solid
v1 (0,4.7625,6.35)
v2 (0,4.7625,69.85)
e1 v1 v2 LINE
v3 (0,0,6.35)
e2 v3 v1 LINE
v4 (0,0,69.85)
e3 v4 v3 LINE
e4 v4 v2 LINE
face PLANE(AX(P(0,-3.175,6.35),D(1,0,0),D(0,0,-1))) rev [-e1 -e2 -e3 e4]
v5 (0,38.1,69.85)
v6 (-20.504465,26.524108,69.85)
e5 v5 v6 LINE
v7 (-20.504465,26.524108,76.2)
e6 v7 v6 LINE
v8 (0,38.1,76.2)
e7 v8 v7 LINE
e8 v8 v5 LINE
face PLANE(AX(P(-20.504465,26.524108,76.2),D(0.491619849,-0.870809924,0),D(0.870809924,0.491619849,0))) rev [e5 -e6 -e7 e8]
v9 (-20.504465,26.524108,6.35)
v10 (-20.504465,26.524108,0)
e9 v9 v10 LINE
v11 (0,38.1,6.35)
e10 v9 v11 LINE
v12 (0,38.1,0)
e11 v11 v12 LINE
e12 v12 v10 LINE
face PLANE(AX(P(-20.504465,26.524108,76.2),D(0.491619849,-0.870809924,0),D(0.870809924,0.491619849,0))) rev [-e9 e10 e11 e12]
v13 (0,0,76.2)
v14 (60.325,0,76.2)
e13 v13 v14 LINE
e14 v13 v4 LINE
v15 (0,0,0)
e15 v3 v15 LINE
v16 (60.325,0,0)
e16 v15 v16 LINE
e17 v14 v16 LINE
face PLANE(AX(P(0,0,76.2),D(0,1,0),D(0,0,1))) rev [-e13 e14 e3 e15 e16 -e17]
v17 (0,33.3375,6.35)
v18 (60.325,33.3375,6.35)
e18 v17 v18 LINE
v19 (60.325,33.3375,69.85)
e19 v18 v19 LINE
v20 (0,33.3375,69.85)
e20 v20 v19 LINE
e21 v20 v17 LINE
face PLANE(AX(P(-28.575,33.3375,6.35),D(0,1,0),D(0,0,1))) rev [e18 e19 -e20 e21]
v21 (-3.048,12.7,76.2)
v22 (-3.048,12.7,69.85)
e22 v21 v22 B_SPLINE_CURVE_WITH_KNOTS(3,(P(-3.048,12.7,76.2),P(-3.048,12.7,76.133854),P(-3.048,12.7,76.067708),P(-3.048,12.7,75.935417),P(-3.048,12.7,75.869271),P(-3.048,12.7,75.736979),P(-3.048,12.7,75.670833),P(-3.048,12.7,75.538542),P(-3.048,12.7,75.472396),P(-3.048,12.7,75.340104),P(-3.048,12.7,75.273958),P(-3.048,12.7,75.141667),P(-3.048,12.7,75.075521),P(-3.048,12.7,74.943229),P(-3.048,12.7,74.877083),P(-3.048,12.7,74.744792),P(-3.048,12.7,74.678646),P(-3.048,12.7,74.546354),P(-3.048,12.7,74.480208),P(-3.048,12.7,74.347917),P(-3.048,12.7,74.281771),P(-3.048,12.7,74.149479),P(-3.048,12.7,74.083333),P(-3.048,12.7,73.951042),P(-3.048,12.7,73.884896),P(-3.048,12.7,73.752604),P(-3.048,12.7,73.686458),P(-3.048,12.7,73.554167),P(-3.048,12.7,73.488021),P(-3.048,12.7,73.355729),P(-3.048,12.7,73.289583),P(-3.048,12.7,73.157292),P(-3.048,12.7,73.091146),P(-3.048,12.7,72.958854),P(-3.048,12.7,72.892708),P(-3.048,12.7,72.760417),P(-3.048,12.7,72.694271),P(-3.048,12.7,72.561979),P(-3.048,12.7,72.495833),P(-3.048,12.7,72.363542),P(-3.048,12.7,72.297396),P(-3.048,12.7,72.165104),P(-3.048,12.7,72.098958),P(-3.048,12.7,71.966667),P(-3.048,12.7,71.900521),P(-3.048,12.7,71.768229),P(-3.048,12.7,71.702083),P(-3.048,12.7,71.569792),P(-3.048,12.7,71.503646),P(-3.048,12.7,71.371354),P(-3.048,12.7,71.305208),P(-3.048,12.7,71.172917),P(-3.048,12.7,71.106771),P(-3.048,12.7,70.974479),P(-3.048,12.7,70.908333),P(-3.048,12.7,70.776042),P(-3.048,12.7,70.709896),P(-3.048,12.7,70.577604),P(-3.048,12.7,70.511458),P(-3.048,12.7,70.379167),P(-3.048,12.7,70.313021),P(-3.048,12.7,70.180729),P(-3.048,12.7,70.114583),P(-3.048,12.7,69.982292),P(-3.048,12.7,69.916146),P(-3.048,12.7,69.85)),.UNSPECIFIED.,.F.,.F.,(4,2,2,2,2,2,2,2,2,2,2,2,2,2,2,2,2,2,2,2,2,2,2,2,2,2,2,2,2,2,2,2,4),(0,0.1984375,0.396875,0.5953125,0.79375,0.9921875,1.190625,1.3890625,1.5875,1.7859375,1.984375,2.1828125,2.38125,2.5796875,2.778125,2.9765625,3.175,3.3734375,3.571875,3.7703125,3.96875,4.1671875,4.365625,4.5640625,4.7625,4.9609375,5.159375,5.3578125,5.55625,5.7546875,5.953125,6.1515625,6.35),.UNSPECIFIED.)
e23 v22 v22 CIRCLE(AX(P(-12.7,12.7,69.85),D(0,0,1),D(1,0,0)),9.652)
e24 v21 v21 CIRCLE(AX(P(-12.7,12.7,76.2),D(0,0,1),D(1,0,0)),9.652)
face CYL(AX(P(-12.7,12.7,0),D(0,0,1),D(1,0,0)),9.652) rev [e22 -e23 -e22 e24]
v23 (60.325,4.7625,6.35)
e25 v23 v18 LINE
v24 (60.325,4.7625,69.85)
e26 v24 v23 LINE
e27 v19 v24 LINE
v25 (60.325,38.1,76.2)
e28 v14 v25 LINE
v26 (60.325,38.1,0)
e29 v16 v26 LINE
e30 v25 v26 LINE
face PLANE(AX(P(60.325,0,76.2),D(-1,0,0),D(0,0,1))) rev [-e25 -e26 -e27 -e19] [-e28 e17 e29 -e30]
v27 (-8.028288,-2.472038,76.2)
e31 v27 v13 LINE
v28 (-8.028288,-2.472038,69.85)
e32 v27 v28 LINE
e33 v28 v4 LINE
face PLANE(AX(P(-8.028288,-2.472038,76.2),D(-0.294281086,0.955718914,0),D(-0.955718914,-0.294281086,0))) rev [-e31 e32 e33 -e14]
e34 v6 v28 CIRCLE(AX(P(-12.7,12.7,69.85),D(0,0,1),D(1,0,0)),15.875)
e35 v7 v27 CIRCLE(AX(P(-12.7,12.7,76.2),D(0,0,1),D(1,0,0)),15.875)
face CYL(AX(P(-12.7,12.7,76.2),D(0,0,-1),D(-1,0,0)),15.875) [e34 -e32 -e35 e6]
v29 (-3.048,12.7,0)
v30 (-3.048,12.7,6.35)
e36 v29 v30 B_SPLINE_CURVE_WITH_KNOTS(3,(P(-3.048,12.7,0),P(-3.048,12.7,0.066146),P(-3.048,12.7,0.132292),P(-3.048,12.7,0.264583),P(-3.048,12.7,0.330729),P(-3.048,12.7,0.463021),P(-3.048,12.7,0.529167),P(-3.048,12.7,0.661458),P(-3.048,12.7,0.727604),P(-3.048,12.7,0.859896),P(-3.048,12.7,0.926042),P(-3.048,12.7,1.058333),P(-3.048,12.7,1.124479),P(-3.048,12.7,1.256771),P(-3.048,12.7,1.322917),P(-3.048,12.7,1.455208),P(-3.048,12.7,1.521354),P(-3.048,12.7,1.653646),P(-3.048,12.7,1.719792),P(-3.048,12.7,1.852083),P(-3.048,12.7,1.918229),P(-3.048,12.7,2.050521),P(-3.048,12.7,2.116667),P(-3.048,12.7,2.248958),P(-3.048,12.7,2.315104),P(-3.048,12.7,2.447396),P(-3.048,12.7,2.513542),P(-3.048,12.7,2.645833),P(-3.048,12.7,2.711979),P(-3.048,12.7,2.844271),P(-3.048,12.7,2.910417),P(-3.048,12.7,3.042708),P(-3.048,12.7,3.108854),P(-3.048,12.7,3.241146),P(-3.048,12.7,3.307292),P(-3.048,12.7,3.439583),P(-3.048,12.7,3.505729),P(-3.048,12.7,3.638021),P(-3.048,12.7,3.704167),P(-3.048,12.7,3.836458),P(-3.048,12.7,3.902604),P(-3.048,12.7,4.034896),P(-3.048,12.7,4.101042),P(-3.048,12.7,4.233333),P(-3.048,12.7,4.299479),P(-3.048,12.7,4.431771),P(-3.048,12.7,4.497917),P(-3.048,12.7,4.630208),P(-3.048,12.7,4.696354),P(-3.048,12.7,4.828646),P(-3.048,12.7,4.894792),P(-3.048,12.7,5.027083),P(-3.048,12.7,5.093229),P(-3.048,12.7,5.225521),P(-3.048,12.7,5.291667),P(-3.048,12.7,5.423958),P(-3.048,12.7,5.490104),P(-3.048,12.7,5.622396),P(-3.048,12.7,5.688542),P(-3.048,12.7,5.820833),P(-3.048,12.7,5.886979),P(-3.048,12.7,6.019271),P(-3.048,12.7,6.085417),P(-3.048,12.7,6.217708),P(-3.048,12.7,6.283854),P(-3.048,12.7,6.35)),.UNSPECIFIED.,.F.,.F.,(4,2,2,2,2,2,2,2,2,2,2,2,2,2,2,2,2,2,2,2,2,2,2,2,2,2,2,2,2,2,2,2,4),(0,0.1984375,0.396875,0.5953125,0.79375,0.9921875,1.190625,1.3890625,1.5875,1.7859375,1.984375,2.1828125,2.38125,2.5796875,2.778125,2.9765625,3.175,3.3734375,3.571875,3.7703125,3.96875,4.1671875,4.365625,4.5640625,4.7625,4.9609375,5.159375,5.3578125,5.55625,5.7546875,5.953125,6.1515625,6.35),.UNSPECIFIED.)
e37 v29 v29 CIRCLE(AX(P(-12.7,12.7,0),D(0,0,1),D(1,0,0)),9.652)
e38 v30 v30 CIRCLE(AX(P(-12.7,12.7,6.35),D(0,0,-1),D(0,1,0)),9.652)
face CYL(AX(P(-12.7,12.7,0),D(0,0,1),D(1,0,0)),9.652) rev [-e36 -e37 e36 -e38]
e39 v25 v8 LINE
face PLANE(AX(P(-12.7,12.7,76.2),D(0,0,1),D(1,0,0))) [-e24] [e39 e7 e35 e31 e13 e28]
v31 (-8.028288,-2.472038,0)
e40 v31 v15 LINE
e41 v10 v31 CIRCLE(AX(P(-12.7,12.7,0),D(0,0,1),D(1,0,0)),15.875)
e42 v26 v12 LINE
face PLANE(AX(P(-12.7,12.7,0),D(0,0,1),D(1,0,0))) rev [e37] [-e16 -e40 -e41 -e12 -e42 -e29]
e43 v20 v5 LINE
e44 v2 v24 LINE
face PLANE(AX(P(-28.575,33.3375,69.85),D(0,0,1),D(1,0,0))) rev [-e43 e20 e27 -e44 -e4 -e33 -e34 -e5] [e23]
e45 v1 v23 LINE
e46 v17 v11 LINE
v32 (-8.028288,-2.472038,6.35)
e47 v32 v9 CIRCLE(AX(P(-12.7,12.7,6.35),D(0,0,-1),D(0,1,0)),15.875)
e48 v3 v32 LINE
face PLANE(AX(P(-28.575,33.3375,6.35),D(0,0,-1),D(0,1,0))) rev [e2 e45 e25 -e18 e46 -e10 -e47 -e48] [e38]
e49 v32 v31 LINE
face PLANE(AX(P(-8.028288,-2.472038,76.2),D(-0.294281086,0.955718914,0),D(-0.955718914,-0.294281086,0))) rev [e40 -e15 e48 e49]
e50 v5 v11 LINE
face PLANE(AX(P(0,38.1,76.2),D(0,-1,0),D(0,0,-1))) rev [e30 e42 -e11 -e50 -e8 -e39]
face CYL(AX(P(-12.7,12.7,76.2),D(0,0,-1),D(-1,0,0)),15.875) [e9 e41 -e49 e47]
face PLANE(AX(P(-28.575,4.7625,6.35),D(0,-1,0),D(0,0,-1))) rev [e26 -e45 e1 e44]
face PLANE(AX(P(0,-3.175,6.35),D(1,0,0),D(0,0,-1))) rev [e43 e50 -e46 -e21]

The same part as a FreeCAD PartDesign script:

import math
import FreeCAD as App
import Part
import Sketcher
from FreeCAD import Vector
Q = App.Units.Quantity


def add_polygon(sketch, points):
    """Adds a closed chain of lines whose ends are joined by coincident constraints."""
    first, n = sketch.GeometryCount, len(points)
    for a, b in zip(points, points[1:] + points[:1]):
        sketch.addGeometry(Part.LineSegment(App.Vector(*a, 0), App.Vector(*b, 0)), False)
    for i in range(n):
        sketch.addConstraint(Sketcher.Constraint("Coincident", first + i, 2, first + (i + 1) % n, 1))

doc = App.newDocument("Part")
params = doc.addObject("Spreadsheet::Sheet", "Params")
for row, (alias, value) in enumerate([
    ("sketch1_height", "1.5 in"),
    ("sketch1_radius", "0.625 in"),
    ("sketch1_width", "2.375 in"),
    ("pad1_length", "3 in"),
    ("sketch2_height", "2.5 in"),
    ("sketch2_width", "1.125 in"),
    ("sketch3_width", "2 in"),
    ("sketch3_height", "2.5 in"),
    ("sketch4_diameter", "0.76 in"),
], start=1):
    params.set(f"A{row}", alias)
    params.set(f"B{row}", "=" + value)
    params.setAlias(f"B{row}", alias)

body = doc.addObject("PartDesign::Body", "Body")

# Sketch on XY plane
sketch1 = body.newObject("Sketcher::SketchObject", "Sketch")
sketch1.AttachmentSupport = (doc.getObject("XY_Plane"), [""])
sketch1.MapMode = "FlatFace"
sketch1.addGeometry([
    Part.LineSegment(Vector(0, 0, 0), Vector(60, 0, 0)),  # 0
    Part.LineSegment(Vector(60, 0, 0), Vector(60, 38, 0)),  # 1
    Part.LineSegment(Vector(60, 38, 0), Vector(0, 38, 0)),  # 2
    Part.LineSegment(Vector(0, 38, 0), Vector(-21, 27, 0)),  # 3
    Part.ArcOfCircle(Part.Circle(Vector(-13, 13, 0), Vector(0, 0, 1), 16), math.radians(119), math.radians(287)),  # 4
    Part.LineSegment(Vector(-8, -2, 0), Vector(0, 0, 0)),  # 5
], False)
sketch1.addConstraint([
    Sketcher.Constraint("Coincident", 0, 2, 1, 1),
    Sketcher.Constraint("Coincident", 1, 2, 2, 1),
    Sketcher.Constraint("Coincident", 2, 2, 3, 1),
    Sketcher.Constraint("Tangent", 3, 2, 4, 1),
    Sketcher.Constraint("Tangent", 4, 2, 5, 1),
    Sketcher.Constraint("Coincident", 5, 2, 0, 1),
    Sketcher.Constraint("Horizontal", 0),
    Sketcher.Constraint("Vertical", 1),
    Sketcher.Constraint("Horizontal", 2),
    Sketcher.Constraint("Coincident", 5, 2, -1, 1),
    Sketcher.Constraint("PointOnObject", 2, 2, -2),
    Sketcher.Constraint("DistanceY", 1, 1, 1, 2, Q("1.5 in")),
    Sketcher.Constraint("Radius", 4, Q("0.625 in")),
    Sketcher.Constraint("DistanceY", 4, 3, 1, 2, Q("1 in")),
    Sketcher.Constraint("DistanceX", 4, 3, -1, 1, Q("0.5 in")),
    Sketcher.Constraint("DistanceX", 0, 1, 0, 2, Q("2.375 in")),
])
sketch1.setExpression("Constraints[11]", "Params.sketch1_height")
sketch1.setExpression("Constraints[12]", "Params.sketch1_radius")
sketch1.setExpression("Constraints[15]", "Params.sketch1_width")
pad1 = body.newObject("PartDesign::Pad", "Pad")
pad1.Profile = sketch1
pad1.setExpression("Length", "Params.pad1_length")

# Sketch on YZ plane
sketch2 = body.newObject("Sketcher::SketchObject", "Sketch001")
sketch2.AttachmentSupport = (doc.getObject("YZ_Plane"), [""])
sketch2.MapMode = "FlatFace"
sketch2.AttachmentOffset = App.Placement(Vector(0, 0, 2.375 * 25.4), App.Rotation())
add_polygon(sketch2, [(33, 70), (5, 70), (5, 6), (33, 6)])  # lines 0-3
sketch2.addConstraint([
    Sketcher.Constraint("Horizontal", 0),
    Sketcher.Constraint("Vertical", 1),
    Sketcher.Constraint("Horizontal", 2),
    Sketcher.Constraint("Vertical", 3),
    Sketcher.Constraint("DistanceY", 1, 2, 1, 1, Q("2.5 in")),
    Sketcher.Constraint("DistanceX", 0, 2, 0, 1, Q("1.125 in")),
    Sketcher.Constraint("DistanceY", -1, 1, 0, 2, Q("2.75 in")),
    Sketcher.Constraint("DistanceX", -1, 1, 0, 2, Q("0.1875 in")),
])
sketch2.setExpression("Constraints[8]", "Params.sketch2_height")
sketch2.setExpression("Constraints[9]", "Params.sketch2_width")
pocket1 = body.newObject("PartDesign::Pocket", "Pocket")
pocket1.Profile = sketch2
pocket1.Type = "ThroughAll"

# Sketch on XZ plane
sketch3 = body.newObject("Sketcher::SketchObject", "Sketch002")
sketch3.AttachmentSupport = (doc.getObject("XZ_Plane"), [""])
sketch3.MapMode = "FlatFace"
sketch3.AttachmentOffset = App.Placement(Vector(0, 0, -1.5 * 25.4), App.Rotation())
add_polygon(sketch3, [(-51, 6), (-51, 70), (0, 70), (0, 6)])  # lines 0-3
sketch3.addConstraint([
    Sketcher.Constraint("Vertical", 0),
    Sketcher.Constraint("Horizontal", 1),
    Sketcher.Constraint("Vertical", 2),
    Sketcher.Constraint("Horizontal", 3),
    Sketcher.Constraint("PointOnObject", 1, 2, -2),
    Sketcher.Constraint("DistanceX", 1, 1, 1, 2, Q("2 in")),
    Sketcher.Constraint("DistanceY", 0, 1, 0, 2, Q("2.5 in")),
    Sketcher.Constraint("DistanceY", -1, 1, 0, 2, Q("2.75 in")),
])
sketch3.setExpression("Constraints[9]", "Params.sketch3_width")
sketch3.setExpression("Constraints[10]", "Params.sketch3_height")
pocket2 = body.newObject("PartDesign::Pocket", "Pocket001")
pocket2.Profile = sketch3
pocket2.Type = "ThroughAll"
pocket2.Reversed = True

# Sketch on XY plane
sketch4 = body.newObject("Sketcher::SketchObject", "Sketch003")
sketch4.AttachmentSupport = (doc.getObject("XY_Plane"), [""])
sketch4.MapMode = "FlatFace"
sketch4.AttachmentOffset = App.Placement(Vector(0, 0, 3 * 25.4), App.Rotation())
sketch4.addGeometry(Part.Circle(Vector(-13, 13, 0), Vector(0, 0, 1), 10), False)
sketch4.addConstraint([
    Sketcher.Constraint("Diameter", 0, Q("0.76 in")),
    Sketcher.Constraint("DistanceX", 0, 3, -1, 1, Q("0.5 in")),
    Sketcher.Constraint("DistanceY", -1, 1, 0, 3, Q("0.5 in")),
])
sketch4.setExpression("Constraints[0]", "Params.sketch4_diameter")
pocket3 = body.newObject("PartDesign::Pocket", "Pocket002")
pocket3.Profile = sketch4
pocket3.Type = "ThroughAll"

doc.recompute()
